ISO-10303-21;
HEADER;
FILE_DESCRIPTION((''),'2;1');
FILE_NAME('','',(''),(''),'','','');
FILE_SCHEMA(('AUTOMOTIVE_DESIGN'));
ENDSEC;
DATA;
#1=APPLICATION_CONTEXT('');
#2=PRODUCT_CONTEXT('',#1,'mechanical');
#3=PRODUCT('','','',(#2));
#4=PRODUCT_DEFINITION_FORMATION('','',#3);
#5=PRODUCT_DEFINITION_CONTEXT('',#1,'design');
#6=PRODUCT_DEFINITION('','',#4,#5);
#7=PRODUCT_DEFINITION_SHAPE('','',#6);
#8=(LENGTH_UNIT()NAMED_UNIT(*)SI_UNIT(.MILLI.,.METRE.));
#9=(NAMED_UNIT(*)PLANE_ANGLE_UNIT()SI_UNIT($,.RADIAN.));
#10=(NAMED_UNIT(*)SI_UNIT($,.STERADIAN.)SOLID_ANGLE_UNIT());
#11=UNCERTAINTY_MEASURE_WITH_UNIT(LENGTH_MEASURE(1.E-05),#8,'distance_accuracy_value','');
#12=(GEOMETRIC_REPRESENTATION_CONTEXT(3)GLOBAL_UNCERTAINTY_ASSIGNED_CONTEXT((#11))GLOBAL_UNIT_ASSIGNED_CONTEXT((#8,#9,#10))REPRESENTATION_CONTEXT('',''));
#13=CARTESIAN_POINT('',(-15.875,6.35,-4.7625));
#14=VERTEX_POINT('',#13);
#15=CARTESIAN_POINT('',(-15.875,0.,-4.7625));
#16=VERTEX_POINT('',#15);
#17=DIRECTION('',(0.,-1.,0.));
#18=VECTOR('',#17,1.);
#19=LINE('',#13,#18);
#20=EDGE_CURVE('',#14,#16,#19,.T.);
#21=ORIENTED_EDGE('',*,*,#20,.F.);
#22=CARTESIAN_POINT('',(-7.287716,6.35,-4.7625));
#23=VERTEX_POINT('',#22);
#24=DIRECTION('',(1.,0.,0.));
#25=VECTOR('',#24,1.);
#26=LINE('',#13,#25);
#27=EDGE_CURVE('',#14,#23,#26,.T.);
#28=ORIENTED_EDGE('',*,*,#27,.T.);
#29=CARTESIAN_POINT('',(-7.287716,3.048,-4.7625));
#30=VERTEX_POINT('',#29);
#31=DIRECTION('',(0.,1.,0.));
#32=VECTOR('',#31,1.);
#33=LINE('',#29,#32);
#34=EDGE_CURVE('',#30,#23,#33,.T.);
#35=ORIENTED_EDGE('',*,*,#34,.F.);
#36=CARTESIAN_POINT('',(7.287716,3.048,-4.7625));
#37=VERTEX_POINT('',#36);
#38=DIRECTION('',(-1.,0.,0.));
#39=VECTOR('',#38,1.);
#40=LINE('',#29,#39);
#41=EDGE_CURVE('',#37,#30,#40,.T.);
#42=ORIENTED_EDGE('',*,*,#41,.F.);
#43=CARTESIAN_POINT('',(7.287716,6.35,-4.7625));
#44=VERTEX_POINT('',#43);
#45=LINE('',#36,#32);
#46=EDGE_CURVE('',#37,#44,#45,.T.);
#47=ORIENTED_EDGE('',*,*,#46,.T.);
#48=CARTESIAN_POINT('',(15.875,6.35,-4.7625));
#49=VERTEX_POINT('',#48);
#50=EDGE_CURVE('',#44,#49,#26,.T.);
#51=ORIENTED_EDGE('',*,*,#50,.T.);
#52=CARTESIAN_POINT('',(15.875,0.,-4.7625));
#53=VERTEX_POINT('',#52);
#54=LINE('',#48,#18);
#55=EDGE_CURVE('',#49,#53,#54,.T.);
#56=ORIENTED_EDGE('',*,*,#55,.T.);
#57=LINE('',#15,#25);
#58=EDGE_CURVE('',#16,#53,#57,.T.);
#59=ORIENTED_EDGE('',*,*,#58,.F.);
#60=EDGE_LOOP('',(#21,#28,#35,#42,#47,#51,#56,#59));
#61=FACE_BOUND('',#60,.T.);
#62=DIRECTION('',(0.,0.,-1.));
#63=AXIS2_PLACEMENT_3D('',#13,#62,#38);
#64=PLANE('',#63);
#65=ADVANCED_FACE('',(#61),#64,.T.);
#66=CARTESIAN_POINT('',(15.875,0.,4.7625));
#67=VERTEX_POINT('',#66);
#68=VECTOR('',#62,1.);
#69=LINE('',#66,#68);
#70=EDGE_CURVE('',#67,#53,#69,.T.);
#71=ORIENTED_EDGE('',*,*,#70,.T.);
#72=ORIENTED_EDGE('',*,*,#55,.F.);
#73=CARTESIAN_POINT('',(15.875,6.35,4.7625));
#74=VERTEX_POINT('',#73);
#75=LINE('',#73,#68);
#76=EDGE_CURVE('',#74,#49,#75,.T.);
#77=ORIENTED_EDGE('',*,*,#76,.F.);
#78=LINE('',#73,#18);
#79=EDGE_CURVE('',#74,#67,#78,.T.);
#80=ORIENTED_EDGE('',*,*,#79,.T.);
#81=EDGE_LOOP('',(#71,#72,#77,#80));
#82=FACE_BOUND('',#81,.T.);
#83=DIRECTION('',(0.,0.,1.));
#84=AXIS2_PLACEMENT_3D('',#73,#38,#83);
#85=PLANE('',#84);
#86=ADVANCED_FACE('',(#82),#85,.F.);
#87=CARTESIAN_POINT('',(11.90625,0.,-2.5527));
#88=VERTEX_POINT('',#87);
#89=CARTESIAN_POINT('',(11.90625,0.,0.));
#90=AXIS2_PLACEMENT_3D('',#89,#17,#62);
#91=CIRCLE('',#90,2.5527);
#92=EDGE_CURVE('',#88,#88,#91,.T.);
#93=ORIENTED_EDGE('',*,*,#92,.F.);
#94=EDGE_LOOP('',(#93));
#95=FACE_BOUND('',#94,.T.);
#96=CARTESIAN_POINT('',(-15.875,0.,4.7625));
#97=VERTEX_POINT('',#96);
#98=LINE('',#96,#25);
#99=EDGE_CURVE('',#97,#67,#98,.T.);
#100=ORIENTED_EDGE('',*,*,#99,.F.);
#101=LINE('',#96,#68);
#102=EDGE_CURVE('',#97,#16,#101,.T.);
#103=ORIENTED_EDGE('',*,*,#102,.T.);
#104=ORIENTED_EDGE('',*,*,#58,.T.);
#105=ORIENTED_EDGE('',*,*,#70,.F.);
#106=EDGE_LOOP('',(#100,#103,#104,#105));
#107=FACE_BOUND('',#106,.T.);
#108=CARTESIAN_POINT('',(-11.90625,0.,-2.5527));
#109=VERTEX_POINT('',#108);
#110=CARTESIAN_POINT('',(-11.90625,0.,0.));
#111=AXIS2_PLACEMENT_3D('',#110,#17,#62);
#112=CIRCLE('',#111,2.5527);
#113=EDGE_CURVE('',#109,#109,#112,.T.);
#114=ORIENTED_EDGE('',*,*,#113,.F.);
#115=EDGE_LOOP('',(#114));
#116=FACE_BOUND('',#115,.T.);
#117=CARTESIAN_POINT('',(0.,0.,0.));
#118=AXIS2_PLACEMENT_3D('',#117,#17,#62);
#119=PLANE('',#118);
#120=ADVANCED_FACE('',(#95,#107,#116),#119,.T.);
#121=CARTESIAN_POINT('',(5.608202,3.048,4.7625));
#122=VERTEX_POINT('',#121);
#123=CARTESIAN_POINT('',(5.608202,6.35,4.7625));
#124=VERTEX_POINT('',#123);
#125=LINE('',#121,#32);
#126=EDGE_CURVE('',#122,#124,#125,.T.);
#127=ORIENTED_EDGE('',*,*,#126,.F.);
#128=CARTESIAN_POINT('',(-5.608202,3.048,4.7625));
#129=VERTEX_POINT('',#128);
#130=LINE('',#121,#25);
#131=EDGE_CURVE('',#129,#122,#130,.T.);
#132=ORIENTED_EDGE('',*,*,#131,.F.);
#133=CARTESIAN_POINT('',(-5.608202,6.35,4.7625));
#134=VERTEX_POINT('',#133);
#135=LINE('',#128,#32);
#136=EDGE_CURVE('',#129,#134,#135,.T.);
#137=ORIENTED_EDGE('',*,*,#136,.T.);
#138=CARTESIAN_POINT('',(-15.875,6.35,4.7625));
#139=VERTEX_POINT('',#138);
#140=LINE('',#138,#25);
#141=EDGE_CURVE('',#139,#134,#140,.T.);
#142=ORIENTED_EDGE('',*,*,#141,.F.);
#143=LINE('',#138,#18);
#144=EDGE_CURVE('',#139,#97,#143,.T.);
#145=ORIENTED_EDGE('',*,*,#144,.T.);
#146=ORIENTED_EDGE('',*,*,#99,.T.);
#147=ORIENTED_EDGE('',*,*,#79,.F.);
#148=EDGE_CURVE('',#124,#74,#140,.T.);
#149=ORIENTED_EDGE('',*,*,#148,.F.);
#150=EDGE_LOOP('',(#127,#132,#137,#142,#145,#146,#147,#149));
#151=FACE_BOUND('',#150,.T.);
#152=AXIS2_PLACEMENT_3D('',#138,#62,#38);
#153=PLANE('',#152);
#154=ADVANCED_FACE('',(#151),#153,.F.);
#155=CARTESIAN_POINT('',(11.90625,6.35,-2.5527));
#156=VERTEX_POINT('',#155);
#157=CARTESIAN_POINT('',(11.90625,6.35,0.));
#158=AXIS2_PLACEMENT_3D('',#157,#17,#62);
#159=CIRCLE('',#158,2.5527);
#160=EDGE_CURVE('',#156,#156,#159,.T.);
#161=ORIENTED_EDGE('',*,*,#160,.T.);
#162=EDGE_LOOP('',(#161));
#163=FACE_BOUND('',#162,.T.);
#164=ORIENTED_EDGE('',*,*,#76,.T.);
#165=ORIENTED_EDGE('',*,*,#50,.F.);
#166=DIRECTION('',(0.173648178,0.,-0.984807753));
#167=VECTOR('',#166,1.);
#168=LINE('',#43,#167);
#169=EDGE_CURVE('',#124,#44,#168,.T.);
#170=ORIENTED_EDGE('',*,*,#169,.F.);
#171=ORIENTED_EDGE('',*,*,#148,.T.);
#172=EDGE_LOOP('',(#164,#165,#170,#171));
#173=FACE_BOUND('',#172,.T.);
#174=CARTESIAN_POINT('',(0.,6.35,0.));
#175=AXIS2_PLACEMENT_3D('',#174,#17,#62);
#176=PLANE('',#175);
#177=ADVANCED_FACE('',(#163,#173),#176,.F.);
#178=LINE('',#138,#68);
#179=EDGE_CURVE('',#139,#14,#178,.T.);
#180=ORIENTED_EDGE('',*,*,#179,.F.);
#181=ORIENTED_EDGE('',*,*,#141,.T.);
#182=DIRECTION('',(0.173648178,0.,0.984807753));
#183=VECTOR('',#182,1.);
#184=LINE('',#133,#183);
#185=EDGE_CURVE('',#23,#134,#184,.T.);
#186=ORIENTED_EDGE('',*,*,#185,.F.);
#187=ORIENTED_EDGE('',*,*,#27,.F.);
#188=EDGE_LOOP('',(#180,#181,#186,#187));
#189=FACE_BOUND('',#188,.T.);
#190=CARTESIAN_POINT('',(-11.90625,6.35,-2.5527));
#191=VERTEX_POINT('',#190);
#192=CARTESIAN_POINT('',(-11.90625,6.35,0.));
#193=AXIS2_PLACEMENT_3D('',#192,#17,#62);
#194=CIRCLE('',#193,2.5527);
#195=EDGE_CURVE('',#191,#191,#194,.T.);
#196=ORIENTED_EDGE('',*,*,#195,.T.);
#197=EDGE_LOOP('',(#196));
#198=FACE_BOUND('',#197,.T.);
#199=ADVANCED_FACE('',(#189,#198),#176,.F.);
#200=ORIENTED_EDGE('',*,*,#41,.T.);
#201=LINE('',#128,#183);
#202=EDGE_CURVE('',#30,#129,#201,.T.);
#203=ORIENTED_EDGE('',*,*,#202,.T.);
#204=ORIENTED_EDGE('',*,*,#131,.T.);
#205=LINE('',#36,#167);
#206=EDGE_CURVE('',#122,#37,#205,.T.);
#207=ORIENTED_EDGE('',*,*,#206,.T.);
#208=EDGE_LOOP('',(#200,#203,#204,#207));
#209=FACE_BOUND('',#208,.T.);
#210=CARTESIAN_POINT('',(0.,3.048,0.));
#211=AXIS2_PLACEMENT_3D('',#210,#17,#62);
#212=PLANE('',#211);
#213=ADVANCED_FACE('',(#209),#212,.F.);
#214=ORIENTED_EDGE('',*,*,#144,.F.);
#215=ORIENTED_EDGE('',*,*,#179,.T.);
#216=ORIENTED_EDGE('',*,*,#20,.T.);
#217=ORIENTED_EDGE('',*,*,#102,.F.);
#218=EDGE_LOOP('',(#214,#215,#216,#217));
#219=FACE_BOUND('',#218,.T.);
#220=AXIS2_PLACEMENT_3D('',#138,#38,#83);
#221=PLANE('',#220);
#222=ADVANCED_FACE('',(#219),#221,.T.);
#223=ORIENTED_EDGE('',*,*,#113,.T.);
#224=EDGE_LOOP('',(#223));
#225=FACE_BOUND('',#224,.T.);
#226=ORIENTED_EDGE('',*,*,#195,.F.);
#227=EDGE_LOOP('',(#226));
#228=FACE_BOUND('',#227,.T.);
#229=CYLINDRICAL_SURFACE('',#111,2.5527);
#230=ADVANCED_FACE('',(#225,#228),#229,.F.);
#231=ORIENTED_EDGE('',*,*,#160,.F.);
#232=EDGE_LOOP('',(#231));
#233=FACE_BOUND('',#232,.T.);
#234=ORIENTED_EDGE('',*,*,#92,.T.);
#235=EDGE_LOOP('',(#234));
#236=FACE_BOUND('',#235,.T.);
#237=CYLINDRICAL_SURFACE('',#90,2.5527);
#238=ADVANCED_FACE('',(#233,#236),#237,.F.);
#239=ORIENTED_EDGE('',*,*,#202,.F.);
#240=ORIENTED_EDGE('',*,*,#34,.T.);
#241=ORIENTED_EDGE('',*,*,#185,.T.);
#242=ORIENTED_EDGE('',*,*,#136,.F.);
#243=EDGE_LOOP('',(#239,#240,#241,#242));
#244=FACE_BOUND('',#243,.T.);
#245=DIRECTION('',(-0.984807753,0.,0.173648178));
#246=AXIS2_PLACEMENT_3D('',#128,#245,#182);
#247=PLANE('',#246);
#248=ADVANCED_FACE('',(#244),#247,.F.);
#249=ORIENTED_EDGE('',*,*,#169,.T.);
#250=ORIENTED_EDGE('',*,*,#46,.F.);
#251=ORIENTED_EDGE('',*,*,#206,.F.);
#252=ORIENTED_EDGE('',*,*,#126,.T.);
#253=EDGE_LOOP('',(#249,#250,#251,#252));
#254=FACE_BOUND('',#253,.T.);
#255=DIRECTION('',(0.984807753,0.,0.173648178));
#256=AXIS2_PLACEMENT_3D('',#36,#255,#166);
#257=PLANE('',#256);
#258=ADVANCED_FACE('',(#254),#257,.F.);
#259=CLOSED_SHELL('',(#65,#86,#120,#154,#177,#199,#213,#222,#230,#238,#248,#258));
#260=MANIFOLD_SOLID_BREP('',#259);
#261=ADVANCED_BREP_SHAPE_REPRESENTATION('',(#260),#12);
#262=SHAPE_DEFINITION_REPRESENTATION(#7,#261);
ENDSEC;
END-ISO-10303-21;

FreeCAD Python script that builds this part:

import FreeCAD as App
import Part
import Sketcher
from FreeCAD import Vector
Q = App.Units.Quantity


def add_polygon(sketch, points):
    """Adds a closed chain of lines whose ends are joined by coincident constraints."""
    first, n = sketch.GeometryCount, len(points)
    for a, b in zip(points, points[1:] + points[:1]):
        sketch.addGeometry(Part.LineSegment(App.Vector(*a, 0), App.Vector(*b, 0)), False)
    for i in range(n):
        sketch.addConstraint(Sketcher.Constraint("Coincident", first + i, 2, first + (i + 1) % n, 1))

doc = App.newDocument("Part")
body = doc.addObject("PartDesign::Body", "Body")

# Sketch on XZ plane
sketch1 = body.newObject("Sketcher::SketchObject", "Sketch")
sketch1.AttachmentSupport = (doc.getObject("XZ_Plane"), [""])
sketch1.MapMode = "FlatFace"
add_polygon(sketch1, [(-15.875, -4.7625), (-15.875, 4.7625), (15.875, 4.7625), (15.875, -4.7625)])  # lines 0-3
sketch1.addConstraint([
    Sketcher.Constraint("Vertical", 0),
    Sketcher.Constraint("Horizontal", 1),
    Sketcher.Constraint("Vertical", 2),
    Sketcher.Constraint("Horizontal", 3),
    Sketcher.Constraint("Symmetric", 0, 2, 2, 2, -1, 1),
    Sketcher.Constraint("DistanceX", 1, 1, 1, 2, Q("1.25 in")),
    Sketcher.Constraint("DistanceY", 0, 1, 0, 2, Q("0.375 in")),
])
pad1 = body.newObject("PartDesign::Pad", "Pad")
pad1.Profile = sketch1
pad1.Length = Q("0.25 in")
pad1.Reversed = True

# Sketch on XZ plane
sketch2 = body.newObject("Sketcher::SketchObject", "Sketch001")
sketch2.AttachmentSupport = (doc.getObject("XZ_Plane"), [""])
sketch2.MapMode = "FlatFace"
sketch2.addGeometry([
    Part.Circle(Vector(-11.90625, 0, 0), Vector(0, 0, 1), 2.5527),
    Part.Circle(Vector(11.90625, 0, 0), Vector(0, 0, 1), 2.5527),
], False)
sketch2.addConstraint([
    Sketcher.Constraint("Equal", 0, 1),
    Sketcher.Constraint("Symmetric", 0, 3, 1, 3, -1, 1),
    Sketcher.Constraint("PointOnObject", 0, 3, -1),
    Sketcher.Constraint("Diameter", 0, Q("0.201 in")),
    Sketcher.Constraint("DistanceX", 0, 3, -1, 1, Q("0.46875 in")),
])
doc.recompute()
hole = body.newObject("PartDesign::Hole", "Hole")
hole.Profile = sketch2
hole.ThreadType = "None"
hole.Diameter = Q("0.201 in")
hole.DepthType = "Dimension"
hole.Depth = Q("0.75 in")
hole.DrillPoint = "Angled"
hole.DrillPointAngle = 118

# Sketch on XZ plane
sketch3 = body.newObject("Sketcher::SketchObject", "Sketch002")
sketch3.AttachmentSupport = (doc.getObject("XZ_Plane"), [""])
sketch3.MapMode = "FlatFace"
sketch3.AttachmentOffset = App.Placement(Vector(0, 0, -0.25 * 25.4), App.Rotation())
add_polygon(sketch3, [(5.608202, 4.7625), (7.287716, -4.7625), (-7.287716, -4.7625), (-5.608202, 4.7625)])  # lines 0-3
sketch3.addConstraint([
    Sketcher.Constraint("Horizontal", 1),
    Sketcher.Constraint("Horizontal", 3),
    Sketcher.Constraint("Equal", 0, 2),
    Sketcher.Constraint("Angle", 0, Q("-80 deg")),
    Sketcher.Constraint("DistanceY", 0, 2, -1, 1, Q("0.1875 in")),
    Sketcher.Constraint("DistanceY", -1, 1, 2, 2, Q("0.1875 in")),
    Sketcher.Constraint("DistanceX", 2, 2, -1, 1, 5.608202),
    Sketcher.Constraint("DistanceX", -1, 1, 3, 2, 5.608202),
])
pocket1 = body.newObject("PartDesign::Pocket", "Pocket")
pocket1.Profile = sketch3
pocket1.Length = Q("0.13 in")
pocket1.Reversed = True

doc.recompute()
